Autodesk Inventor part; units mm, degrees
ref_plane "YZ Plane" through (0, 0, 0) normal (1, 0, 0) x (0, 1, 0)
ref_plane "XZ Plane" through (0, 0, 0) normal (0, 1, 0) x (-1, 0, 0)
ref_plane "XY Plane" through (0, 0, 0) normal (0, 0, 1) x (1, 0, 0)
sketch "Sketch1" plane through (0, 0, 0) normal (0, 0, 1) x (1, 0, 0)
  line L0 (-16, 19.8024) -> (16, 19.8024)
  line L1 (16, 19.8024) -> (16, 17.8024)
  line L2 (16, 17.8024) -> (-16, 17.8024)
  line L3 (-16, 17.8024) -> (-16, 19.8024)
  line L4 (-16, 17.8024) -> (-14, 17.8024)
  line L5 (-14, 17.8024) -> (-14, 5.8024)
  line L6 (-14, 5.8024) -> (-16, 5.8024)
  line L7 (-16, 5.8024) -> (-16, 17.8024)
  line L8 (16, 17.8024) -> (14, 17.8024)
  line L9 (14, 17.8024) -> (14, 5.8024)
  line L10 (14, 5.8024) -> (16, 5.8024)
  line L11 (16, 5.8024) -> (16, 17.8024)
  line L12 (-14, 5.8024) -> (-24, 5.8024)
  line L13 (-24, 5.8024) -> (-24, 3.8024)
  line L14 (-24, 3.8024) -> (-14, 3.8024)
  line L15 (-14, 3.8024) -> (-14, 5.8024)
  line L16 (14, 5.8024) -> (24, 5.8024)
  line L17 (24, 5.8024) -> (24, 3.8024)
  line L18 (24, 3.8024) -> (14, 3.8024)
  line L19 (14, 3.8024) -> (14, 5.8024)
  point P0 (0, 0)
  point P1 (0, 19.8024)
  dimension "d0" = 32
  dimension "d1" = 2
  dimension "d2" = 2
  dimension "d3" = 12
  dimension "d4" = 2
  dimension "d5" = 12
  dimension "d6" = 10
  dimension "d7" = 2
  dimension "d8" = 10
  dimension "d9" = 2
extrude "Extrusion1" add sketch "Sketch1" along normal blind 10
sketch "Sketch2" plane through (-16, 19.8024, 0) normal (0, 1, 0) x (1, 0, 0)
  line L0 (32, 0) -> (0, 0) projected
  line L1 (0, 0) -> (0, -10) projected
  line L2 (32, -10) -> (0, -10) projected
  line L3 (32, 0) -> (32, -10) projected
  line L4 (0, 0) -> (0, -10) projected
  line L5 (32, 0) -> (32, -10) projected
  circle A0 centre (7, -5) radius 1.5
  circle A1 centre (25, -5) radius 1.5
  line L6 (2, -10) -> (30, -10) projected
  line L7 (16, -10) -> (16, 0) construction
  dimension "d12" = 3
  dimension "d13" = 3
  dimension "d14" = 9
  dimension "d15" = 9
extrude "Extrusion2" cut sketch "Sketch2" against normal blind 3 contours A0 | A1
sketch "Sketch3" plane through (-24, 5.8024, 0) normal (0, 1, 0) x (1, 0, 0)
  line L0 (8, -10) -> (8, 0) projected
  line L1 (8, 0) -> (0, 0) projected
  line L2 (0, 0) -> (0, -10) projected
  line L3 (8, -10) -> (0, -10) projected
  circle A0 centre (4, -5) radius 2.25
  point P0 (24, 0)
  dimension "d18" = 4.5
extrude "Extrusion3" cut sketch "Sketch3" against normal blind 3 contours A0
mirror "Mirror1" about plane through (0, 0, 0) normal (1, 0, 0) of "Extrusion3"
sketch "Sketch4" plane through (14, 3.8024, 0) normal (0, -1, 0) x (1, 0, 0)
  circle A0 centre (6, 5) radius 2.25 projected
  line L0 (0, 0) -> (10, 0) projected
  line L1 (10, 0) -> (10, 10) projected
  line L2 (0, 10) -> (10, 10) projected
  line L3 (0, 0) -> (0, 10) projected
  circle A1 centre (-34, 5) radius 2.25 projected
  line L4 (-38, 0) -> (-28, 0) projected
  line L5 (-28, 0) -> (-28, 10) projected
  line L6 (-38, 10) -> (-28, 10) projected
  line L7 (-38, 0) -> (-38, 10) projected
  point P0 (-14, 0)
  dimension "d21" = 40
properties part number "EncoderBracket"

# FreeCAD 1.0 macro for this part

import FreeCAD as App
import Part
import Sketcher

V = App.Vector


def add_polygon(sketch, points):
    """Adds a closed chain of lines whose ends are joined by coincident constraints."""
    first, n = sketch.GeometryCount, len(points)
    for a, b in zip(points, points[1:] + points[:1]):
        sketch.addGeometry(Part.LineSegment(App.Vector(*a, 0), App.Vector(*b, 0)), False)
    for i in range(n):
        sketch.addConstraint(Sketcher.Constraint("Coincident", first + i, 2, first + (i + 1) % n, 1))

doc = App.newDocument("Part")
body = doc.addObject("PartDesign::Body", "Body")

# Sketch on XY plane
sketch1 = body.newObject("Sketcher::SketchObject", "Sketch")
sketch1.AttachmentSupport = (doc.getObject("XY_Plane"), [""])
sketch1.MapMode = "FlatFace"
add_polygon(sketch1, [(16, 19.8), (-16, 19.8), (-16, 5.8), (-24, 5.8), (-24, 3.8), (-14, 3.8), (-14, 17.8), (14, 17.8), (14, 3.8), (24, 3.8), (24, 5.8), (16, 5.8)])  # lines 0-11
sketch1.addConstraint([
    Sketcher.Constraint("Horizontal", 0),
    Sketcher.Constraint("Vertical", 1),
    Sketcher.Constraint("Horizontal", 2),
    Sketcher.Constraint("Vertical", 3),
    Sketcher.Constraint("Horizontal", 4),
    Sketcher.Constraint("Vertical", 5),
    Sketcher.Constraint("Horizontal", 6),
    Sketcher.Constraint("Vertical", 7),
    Sketcher.Constraint("Horizontal", 8),
    Sketcher.Constraint("Vertical", 9),
    Sketcher.Constraint("Horizontal", 10),
    Sketcher.Constraint("Vertical", 11),
    Sketcher.Constraint("Symmetric", 4, 2, 7, 2, -2),
    Sketcher.Constraint("Symmetric", 2, 2, 9, 2, -2),
    Sketcher.Constraint("Equal", 2, 10),
    Sketcher.Constraint("Equal", 1, 5),
    Sketcher.Constraint("DistanceX", 0, 2, 0, 1, 32.0),
    Sketcher.Constraint("DistanceX", 4, 1, 4, 2, 10.0),
    Sketcher.Constraint("DistanceY", 3, 2, 3, 1, 2.0),
    Sketcher.Constraint("DistanceX", 1, 2, 4, 2, 2.0),
    Sketcher.Constraint("DistanceY", 1, 2, 5, 2, 12.0),
    Sketcher.Constraint("DistanceY", -1, 1, 0, 2, 19.8024),
])
pad1 = body.newObject("PartDesign::Pad", "Pad")
pad1.Profile = sketch1
pad1.Length = 10

# Sketch on XZ plane
sketch2 = body.newObject("Sketcher::SketchObject", "Sketch001")
sketch2.AttachmentSupport = (doc.getObject("XZ_Plane"), [""])
sketch2.MapMode = "FlatFace"
sketch2.AttachmentOffset = App.Placement(V(0, 0, -19.8024), App.Rotation())
sketch2.addGeometry([
    Part.Circle(V(-9, 5, 0), V(0, 0, 1), 1.5),
    Part.Circle(V(9, 5, 0), V(0, 0, 1), 1.5),
], False)
sketch2.addConstraint([
    Sketcher.Constraint("Equal", 0, 1),
    Sketcher.Constraint("Symmetric", 0, 3, 1, 3, -2),
    Sketcher.Constraint("Diameter", 0, 3.0),
    Sketcher.Constraint("DistanceX", 0, 3, -1, 1, 9.0),
    Sketcher.Constraint("DistanceY", -1, 1, 0, 3, 5.0),
])
pocket1 = body.newObject("PartDesign::Pocket", "Pocket")
pocket1.Profile = sketch2
pocket1.Length = 3
pocket1.Reversed = True

# Sketch on XZ plane
sketch3 = body.newObject("Sketcher::SketchObject", "Sketch002")
sketch3.AttachmentSupport = (doc.getObject("XZ_Plane"), [""])
sketch3.MapMode = "FlatFace"
sketch3.AttachmentOffset = App.Placement(V(0, 0, -5.8024), App.Rotation())
sketch3.addGeometry(Part.Circle(V(-20, 5, 0), V(0, 0, 1), 2.2), False)
sketch3.addConstraint([
    Sketcher.Constraint("Diameter", 0, 4.5),
    Sketcher.Constraint("DistanceX", 0, 3, -1, 1, 20.0),
    Sketcher.Constraint("DistanceY", -1, 1, 0, 3, 5.0),
])
pocket2 = body.newObject("PartDesign::Pocket", "Pocket001")
pocket2.Profile = sketch3
pocket2.Length = 3
pocket2.Reversed = True
doc.recompute()

mirrored = body.newObject("PartDesign::Mirrored", "Mirrored")
mirrored.Originals = [pocket2]
mirrored.MirrorPlane = (doc.getObject("YZ_Plane"), [""])
body.Tip = mirrored

doc.recompute()
